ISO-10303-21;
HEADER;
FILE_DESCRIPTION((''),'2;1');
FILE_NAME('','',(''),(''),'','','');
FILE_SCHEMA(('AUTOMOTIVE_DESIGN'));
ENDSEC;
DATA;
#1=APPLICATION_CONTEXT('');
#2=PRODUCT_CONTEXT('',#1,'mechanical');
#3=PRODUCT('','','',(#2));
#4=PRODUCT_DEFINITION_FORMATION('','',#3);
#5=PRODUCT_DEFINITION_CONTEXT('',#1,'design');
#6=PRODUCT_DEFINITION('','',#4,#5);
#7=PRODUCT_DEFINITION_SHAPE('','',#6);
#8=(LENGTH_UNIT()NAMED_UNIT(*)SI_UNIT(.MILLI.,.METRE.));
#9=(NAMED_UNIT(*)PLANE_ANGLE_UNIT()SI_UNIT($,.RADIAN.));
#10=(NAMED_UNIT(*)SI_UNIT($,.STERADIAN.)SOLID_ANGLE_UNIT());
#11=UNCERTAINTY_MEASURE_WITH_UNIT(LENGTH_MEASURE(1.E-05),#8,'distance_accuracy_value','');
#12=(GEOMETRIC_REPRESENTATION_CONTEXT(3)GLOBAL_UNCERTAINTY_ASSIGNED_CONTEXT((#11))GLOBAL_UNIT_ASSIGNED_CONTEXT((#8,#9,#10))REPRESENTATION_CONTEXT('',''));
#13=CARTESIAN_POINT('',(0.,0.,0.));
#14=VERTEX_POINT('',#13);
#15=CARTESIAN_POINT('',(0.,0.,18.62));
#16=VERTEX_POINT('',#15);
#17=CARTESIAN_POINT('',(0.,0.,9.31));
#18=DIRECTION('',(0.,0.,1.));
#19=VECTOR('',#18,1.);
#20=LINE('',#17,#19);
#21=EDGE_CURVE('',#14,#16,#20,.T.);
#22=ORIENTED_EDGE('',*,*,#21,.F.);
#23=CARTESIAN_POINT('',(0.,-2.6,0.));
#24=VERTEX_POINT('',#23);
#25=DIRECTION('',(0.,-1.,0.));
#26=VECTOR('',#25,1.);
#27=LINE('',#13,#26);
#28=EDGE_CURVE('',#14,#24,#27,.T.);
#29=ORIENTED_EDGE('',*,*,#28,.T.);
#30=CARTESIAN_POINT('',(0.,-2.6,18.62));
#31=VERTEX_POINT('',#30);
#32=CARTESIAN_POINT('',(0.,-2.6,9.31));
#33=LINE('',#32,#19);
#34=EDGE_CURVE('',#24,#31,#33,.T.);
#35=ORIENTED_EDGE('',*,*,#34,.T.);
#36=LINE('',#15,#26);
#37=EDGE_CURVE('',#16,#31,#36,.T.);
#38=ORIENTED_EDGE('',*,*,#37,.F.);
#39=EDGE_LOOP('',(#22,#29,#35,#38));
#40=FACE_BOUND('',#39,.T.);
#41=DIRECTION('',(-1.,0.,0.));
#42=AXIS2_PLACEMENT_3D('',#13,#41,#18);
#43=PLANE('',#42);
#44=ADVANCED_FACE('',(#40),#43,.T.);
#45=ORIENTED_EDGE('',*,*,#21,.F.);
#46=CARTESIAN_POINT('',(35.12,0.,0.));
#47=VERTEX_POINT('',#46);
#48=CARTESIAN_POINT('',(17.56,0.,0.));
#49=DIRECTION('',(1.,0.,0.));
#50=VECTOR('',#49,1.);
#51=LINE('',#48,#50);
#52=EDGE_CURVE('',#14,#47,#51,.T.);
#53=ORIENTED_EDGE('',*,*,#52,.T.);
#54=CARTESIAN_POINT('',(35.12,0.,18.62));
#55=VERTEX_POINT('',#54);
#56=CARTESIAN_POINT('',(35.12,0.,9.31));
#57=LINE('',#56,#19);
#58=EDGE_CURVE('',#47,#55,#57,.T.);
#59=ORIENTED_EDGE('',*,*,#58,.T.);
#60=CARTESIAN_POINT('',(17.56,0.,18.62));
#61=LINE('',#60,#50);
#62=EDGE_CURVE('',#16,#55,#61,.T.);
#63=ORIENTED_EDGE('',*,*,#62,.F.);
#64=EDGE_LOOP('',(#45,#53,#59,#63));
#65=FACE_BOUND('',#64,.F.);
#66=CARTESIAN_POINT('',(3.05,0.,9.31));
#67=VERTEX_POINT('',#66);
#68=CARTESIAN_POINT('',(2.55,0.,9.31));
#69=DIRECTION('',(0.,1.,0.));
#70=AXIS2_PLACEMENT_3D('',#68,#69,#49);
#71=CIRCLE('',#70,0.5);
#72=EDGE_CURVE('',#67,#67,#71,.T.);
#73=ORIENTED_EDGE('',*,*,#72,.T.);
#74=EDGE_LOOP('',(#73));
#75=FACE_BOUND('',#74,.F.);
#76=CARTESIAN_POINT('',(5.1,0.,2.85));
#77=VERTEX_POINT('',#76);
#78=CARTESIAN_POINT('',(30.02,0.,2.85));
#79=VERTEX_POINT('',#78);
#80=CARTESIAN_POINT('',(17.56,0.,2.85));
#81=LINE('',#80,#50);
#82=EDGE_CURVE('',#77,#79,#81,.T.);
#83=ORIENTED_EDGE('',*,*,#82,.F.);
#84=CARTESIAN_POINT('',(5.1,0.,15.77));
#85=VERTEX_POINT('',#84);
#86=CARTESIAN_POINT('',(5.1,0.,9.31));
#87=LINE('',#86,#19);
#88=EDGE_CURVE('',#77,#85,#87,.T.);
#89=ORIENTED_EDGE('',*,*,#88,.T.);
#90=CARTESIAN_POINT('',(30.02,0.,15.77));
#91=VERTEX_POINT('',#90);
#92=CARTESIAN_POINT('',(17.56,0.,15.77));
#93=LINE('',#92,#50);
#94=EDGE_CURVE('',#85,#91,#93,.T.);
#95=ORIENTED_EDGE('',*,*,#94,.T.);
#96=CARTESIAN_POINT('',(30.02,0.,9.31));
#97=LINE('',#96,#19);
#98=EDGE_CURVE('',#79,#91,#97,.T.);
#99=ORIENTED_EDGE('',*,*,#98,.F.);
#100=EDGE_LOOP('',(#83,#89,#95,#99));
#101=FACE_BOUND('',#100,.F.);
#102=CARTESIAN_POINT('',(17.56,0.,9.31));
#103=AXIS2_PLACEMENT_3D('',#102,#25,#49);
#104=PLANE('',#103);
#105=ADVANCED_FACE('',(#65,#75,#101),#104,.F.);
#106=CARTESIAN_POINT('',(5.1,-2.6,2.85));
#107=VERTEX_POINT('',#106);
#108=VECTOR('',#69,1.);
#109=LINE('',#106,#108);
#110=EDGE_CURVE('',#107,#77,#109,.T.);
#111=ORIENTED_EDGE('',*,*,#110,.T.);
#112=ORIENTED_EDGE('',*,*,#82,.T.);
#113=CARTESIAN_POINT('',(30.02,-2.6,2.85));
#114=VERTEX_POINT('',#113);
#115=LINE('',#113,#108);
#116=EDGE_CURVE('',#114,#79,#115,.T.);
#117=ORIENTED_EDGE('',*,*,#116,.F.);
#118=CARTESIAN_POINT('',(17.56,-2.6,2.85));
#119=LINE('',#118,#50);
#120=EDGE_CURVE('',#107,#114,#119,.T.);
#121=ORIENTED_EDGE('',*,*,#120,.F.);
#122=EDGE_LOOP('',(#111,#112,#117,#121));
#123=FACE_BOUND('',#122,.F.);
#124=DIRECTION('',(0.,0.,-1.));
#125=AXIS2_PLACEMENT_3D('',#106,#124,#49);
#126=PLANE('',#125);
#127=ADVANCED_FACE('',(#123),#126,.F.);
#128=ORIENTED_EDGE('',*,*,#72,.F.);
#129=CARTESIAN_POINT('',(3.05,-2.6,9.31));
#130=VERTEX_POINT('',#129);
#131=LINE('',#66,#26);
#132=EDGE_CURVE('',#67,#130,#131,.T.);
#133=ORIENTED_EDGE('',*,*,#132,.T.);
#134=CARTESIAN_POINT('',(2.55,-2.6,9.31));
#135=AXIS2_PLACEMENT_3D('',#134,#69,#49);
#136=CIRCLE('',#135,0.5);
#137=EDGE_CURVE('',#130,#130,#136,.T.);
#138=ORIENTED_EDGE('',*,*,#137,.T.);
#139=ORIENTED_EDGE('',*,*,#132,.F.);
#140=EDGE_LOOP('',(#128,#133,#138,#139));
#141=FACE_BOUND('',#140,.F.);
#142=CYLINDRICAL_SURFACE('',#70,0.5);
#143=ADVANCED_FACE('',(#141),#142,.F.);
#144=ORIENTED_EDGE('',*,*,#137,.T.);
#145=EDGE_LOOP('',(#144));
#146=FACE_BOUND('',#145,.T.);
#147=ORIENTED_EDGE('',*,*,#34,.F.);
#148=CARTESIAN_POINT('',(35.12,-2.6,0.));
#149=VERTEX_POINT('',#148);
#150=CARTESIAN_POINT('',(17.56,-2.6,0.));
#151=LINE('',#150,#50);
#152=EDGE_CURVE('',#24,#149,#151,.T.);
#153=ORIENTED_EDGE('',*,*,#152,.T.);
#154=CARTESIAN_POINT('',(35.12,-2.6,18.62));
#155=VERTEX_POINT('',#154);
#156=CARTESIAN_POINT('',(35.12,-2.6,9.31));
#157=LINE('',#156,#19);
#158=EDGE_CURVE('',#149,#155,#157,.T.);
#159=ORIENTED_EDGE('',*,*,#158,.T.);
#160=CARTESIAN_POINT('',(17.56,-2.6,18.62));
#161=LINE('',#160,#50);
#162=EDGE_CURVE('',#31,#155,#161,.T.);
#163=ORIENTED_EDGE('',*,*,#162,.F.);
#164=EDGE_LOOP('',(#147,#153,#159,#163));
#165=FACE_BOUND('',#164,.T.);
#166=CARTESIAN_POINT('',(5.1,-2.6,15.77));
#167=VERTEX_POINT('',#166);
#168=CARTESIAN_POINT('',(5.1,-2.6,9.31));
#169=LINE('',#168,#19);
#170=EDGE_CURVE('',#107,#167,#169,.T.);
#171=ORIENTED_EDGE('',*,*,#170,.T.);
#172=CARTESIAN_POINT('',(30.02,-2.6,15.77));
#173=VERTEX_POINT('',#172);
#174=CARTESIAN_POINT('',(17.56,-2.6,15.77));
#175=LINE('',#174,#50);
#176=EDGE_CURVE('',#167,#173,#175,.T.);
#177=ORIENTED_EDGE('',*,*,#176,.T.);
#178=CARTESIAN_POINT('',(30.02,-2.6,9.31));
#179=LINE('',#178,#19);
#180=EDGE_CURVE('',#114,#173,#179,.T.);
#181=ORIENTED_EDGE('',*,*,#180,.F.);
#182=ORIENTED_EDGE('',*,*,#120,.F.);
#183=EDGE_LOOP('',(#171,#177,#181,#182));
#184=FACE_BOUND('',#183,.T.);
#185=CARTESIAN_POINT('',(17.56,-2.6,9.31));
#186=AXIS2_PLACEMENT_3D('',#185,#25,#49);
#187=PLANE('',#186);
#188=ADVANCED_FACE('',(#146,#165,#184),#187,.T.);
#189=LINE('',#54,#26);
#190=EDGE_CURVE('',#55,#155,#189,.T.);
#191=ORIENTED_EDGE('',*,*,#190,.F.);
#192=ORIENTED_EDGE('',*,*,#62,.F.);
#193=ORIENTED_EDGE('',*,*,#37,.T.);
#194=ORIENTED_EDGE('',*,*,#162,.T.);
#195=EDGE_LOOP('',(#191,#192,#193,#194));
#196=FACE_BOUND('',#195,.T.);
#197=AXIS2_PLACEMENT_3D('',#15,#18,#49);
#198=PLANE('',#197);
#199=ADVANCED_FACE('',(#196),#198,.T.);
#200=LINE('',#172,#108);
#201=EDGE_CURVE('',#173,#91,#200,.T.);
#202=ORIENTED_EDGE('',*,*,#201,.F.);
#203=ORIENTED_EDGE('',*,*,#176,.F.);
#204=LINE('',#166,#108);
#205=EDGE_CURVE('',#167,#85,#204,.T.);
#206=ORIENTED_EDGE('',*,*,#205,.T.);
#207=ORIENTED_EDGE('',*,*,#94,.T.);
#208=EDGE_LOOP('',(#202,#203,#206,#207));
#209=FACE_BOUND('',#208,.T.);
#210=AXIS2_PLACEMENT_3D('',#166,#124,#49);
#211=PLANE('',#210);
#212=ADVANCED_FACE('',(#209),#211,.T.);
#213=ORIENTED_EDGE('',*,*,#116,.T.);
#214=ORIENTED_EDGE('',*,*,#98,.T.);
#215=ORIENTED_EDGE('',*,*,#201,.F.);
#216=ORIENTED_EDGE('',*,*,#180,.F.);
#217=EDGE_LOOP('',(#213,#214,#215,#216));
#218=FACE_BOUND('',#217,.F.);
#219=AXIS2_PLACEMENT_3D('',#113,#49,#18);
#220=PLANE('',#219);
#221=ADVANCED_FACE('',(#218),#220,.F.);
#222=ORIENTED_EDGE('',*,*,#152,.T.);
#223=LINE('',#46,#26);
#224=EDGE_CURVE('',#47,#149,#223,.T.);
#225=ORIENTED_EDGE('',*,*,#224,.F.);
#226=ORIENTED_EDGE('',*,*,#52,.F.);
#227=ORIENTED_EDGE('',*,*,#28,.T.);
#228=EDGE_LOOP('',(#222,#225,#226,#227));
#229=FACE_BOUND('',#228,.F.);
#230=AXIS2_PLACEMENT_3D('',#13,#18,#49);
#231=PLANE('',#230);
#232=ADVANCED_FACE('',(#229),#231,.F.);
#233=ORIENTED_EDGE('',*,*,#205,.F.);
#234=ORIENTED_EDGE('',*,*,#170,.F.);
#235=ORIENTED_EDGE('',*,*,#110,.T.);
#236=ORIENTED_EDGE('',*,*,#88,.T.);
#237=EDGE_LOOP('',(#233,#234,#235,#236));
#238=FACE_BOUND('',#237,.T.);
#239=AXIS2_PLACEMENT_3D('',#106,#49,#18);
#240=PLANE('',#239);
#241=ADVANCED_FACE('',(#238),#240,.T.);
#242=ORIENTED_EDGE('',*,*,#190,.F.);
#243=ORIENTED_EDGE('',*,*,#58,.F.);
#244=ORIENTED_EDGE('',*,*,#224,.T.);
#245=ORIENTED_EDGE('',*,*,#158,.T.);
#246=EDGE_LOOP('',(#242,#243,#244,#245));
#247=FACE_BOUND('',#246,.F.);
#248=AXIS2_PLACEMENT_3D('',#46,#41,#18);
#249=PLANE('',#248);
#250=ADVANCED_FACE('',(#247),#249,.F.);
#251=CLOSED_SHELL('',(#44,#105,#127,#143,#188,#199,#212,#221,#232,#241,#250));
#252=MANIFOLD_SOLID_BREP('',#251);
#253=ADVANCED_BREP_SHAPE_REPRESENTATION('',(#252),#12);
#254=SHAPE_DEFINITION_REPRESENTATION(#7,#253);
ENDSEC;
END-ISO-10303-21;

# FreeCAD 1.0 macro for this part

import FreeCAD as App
import Part
import Sketcher

V = App.Vector
Q = App.Units.Quantity


def add_polygon(sketch, points):
    """Adds a closed chain of lines whose ends are joined by coincident constraints."""
    first, n = sketch.GeometryCount, len(points)
    for a, b in zip(points, points[1:] + points[:1]):
        sketch.addGeometry(Part.LineSegment(App.Vector(*a, 0), App.Vector(*b, 0)), False)
    for i in range(n):
        sketch.addConstraint(Sketcher.Constraint("Coincident", first + i, 2, first + (i + 1) % n, 1))

doc = App.newDocument("Part")
body = doc.addObject("PartDesign::Body", "Body")

sketch1 = doc.addObject("Sketcher::SketchObject", "Sketch")
body.addObject(sketch1)
sketch1.AttachmentSupport = (doc.XZ_Plane, [""])
sketch1.MapMode = "FlatFace"
add_polygon(sketch1, [(0, 18.62), (0, 0), (35.12, 0), (35.12, 18.62)])
sketch1.addConstraint([
    Sketcher.Constraint("Vertical", 0),
    Sketcher.Constraint("Horizontal", 1),
    Sketcher.Constraint("Vertical", 2),
    Sketcher.Constraint("Horizontal", 3),
    Sketcher.Constraint("Coincident", 0, 2, -1, 1),
    Sketcher.Constraint("DistanceX", 1, 1, 1, 2, Q("35.12 mm")),
    Sketcher.Constraint("DistanceY", 0, 2, 0, 1, Q("18.62 mm")),
])
pad1 = doc.addObject("PartDesign::Pad", "Pad")
body.addObject(pad1)
pad1.Profile = sketch1
pad1.Length = 2.6

sketch2 = doc.addObject("Sketcher::SketchObject", "Sketch001")
body.addObject(sketch2)
sketch2.AttachmentSupport = (doc.XZ_Plane, [""])
sketch2.MapMode = "FlatFace"
sketch2.AttachmentOffset = App.Placement(V(0, 0, 2.6), App.Rotation())
add_polygon(sketch2, [(5.1, 15.77), (5.1, 2.85), (30.02, 2.85), (30.02, 15.77)])
sketch2.addConstraint([
    Sketcher.Constraint("Vertical", 0),
    Sketcher.Constraint("Horizontal", 1),
    Sketcher.Constraint("Vertical", 2),
    Sketcher.Constraint("Horizontal", 3),
    Sketcher.Constraint("DistanceX", 1, 1, 1, 2, Q("24.92 mm")),
    Sketcher.Constraint("DistanceY", 0, 2, 0, 1, Q("12.92 mm")),
    Sketcher.Constraint("DistanceX", -1, 1, 0, 2, Q("5.1 mm")),
    Sketcher.Constraint("DistanceY", -1, 1, 0, 2, Q("2.85 mm")),
])
pocket1 = doc.addObject("PartDesign::Pocket", "Pocket")
body.addObject(pocket1)
pocket1.Profile = sketch2
pocket1.Length = 2.6

sketch3 = doc.addObject("Sketcher::SketchObject", "Sketch002")
body.addObject(sketch3)
sketch3.AttachmentSupport = (doc.XZ_Plane, [""])
sketch3.MapMode = "FlatFace"
add_polygon(sketch3, [(26.948742, 6.794061), (26.948742, 10.294061), (28.958742, 10.294061), (28.958742, 6.794061)])
sketch3.addGeometry(Part.Circle(V(2.55, 9.31, 0), V(0, 0, 1), 0.5), False)
sketch3.addConstraint([
    Sketcher.Constraint("Vertical", 0),
    Sketcher.Constraint("Horizontal", 1),
    Sketcher.Constraint("Vertical", 2),
    Sketcher.Constraint("Horizontal", 3),
    Sketcher.Constraint("Diameter", 4, Q("1 mm")),
    Sketcher.Constraint("DistanceY", 0, 1, 0, 2, Q("3.5 mm")),
    Sketcher.Constraint("DistanceX", 1, 1, 1, 2, Q("2.01 mm")),
    Sketcher.Constraint("DistanceX", -1, 1, 4, 3, Q("2.55 mm")),
    Sketcher.Constraint("DistanceY", -1, 1, 4, 3, Q("9.31 mm")),
    Sketcher.Constraint("DistanceX", -1, 1, 0, 2, Q("26.948742 mm")),
    Sketcher.Constraint("DistanceY", -1, 1, 0, 2, Q("10.294061 mm")),
])
pocket2 = doc.addObject("PartDesign::Pocket", "Pocket001")
body.addObject(pocket2)
pocket2.Profile = sketch3
pocket2.Length = 5
pocket2.Reversed = True

doc.recompute()
